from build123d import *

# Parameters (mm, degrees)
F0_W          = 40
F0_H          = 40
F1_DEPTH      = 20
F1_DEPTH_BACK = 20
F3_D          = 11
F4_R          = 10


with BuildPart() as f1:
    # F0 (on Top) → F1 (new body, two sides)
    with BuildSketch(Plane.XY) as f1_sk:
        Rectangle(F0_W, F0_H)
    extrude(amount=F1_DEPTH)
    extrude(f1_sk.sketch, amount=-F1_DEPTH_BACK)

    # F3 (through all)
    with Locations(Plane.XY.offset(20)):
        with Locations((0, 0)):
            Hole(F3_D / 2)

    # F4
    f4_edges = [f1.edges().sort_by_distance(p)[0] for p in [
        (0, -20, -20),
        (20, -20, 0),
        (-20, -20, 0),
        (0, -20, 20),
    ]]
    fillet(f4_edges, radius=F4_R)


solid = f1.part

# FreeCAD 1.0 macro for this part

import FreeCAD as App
import Part
import Sketcher
from FreeCAD import Vector


def edges_at(feature, points):
    """Names of the edges that pass closest to the given points."""
    edges = feature.Shape.Edges
    near = lambda p: min(range(len(edges)), key=lambda i: edges[i].distToShape(Part.Vertex(*p))[0])
    return sorted({f"Edge{near(p) + 1}" for p in points})


def add_polygon(sketch, points):
    """Adds a closed chain of lines whose ends are joined by coincident constraints."""
    first, n = sketch.GeometryCount, len(points)
    for a, b in zip(points, points[1:] + points[:1]):
        sketch.addGeometry(Part.LineSegment(App.Vector(*a, 0), App.Vector(*b, 0)), False)
    for i in range(n):
        sketch.addConstraint(Sketcher.Constraint("Coincident", first + i, 2, first + (i + 1) % n, 1))

doc = App.newDocument("Part")
body = doc.addObject("PartDesign::Body", "Body")

sketch1 = doc.addObject("Sketcher::SketchObject", "Sketch")
body.addObject(sketch1)
sketch1.AttachmentSupport = (doc.XY_Plane, [""])
sketch1.MapMode = "FlatFace"
add_polygon(sketch1, [(-20, 20), (-20, -20), (20, -20), (20, 20)])
sketch1.addConstraint([
    Sketcher.Constraint("Vertical", 0),
    Sketcher.Constraint("Horizontal", 1),
    Sketcher.Constraint("Vertical", 2),
    Sketcher.Constraint("Horizontal", 3),
    Sketcher.Constraint("Symmetric", 0, 2, 2, 2, -1, 1),
    Sketcher.Constraint("Equal", 3, 0),
    Sketcher.Constraint("DistanceX", 1, 1, 1, 2, 40.0),
])
pad1 = doc.addObject("PartDesign::Pad", "Pad")
body.addObject(pad1)
pad1.Profile = sketch1
pad1.Type = "TwoLengths"
pad1.Length = 20
pad1.Length2 = 20

sketch2 = doc.addObject("Sketcher::SketchObject", "Sketch001")
body.addObject(sketch2)
sketch2.AttachmentSupport = (doc.XY_Plane, [""])
sketch2.MapMode = "FlatFace"
sketch2.AttachmentOffset = App.Placement(Vector(0, 0, 20), App.Rotation())
sketch2.addGeometry(Part.Circle(Vector(0, 0, 0), Vector(0, 0, 1), 6), False)
sketch2.addConstraint([
    Sketcher.Constraint("Coincident", 0, 3, -1, 1),
    Sketcher.Constraint("Diameter", 0, 11.0),
])
doc.recompute()
hole = doc.addObject("PartDesign::Hole", "Hole")
body.addObject(hole)
hole.Profile = sketch2
hole.ThreadType = "None"
hole.Diameter = 11
hole.DepthType = "ThroughAll"
doc.recompute()

fillet = doc.addObject("PartDesign::Fillet", "Fillet")
body.addObject(fillet)
fillet.Base = (hole, edges_at(hole, [
    (0, -20, -20),
    (20, -20, 0),
    (-20, -20, 0),
    (0, -20, 20),
]))
fillet.Radius = 10

doc.recompute()
